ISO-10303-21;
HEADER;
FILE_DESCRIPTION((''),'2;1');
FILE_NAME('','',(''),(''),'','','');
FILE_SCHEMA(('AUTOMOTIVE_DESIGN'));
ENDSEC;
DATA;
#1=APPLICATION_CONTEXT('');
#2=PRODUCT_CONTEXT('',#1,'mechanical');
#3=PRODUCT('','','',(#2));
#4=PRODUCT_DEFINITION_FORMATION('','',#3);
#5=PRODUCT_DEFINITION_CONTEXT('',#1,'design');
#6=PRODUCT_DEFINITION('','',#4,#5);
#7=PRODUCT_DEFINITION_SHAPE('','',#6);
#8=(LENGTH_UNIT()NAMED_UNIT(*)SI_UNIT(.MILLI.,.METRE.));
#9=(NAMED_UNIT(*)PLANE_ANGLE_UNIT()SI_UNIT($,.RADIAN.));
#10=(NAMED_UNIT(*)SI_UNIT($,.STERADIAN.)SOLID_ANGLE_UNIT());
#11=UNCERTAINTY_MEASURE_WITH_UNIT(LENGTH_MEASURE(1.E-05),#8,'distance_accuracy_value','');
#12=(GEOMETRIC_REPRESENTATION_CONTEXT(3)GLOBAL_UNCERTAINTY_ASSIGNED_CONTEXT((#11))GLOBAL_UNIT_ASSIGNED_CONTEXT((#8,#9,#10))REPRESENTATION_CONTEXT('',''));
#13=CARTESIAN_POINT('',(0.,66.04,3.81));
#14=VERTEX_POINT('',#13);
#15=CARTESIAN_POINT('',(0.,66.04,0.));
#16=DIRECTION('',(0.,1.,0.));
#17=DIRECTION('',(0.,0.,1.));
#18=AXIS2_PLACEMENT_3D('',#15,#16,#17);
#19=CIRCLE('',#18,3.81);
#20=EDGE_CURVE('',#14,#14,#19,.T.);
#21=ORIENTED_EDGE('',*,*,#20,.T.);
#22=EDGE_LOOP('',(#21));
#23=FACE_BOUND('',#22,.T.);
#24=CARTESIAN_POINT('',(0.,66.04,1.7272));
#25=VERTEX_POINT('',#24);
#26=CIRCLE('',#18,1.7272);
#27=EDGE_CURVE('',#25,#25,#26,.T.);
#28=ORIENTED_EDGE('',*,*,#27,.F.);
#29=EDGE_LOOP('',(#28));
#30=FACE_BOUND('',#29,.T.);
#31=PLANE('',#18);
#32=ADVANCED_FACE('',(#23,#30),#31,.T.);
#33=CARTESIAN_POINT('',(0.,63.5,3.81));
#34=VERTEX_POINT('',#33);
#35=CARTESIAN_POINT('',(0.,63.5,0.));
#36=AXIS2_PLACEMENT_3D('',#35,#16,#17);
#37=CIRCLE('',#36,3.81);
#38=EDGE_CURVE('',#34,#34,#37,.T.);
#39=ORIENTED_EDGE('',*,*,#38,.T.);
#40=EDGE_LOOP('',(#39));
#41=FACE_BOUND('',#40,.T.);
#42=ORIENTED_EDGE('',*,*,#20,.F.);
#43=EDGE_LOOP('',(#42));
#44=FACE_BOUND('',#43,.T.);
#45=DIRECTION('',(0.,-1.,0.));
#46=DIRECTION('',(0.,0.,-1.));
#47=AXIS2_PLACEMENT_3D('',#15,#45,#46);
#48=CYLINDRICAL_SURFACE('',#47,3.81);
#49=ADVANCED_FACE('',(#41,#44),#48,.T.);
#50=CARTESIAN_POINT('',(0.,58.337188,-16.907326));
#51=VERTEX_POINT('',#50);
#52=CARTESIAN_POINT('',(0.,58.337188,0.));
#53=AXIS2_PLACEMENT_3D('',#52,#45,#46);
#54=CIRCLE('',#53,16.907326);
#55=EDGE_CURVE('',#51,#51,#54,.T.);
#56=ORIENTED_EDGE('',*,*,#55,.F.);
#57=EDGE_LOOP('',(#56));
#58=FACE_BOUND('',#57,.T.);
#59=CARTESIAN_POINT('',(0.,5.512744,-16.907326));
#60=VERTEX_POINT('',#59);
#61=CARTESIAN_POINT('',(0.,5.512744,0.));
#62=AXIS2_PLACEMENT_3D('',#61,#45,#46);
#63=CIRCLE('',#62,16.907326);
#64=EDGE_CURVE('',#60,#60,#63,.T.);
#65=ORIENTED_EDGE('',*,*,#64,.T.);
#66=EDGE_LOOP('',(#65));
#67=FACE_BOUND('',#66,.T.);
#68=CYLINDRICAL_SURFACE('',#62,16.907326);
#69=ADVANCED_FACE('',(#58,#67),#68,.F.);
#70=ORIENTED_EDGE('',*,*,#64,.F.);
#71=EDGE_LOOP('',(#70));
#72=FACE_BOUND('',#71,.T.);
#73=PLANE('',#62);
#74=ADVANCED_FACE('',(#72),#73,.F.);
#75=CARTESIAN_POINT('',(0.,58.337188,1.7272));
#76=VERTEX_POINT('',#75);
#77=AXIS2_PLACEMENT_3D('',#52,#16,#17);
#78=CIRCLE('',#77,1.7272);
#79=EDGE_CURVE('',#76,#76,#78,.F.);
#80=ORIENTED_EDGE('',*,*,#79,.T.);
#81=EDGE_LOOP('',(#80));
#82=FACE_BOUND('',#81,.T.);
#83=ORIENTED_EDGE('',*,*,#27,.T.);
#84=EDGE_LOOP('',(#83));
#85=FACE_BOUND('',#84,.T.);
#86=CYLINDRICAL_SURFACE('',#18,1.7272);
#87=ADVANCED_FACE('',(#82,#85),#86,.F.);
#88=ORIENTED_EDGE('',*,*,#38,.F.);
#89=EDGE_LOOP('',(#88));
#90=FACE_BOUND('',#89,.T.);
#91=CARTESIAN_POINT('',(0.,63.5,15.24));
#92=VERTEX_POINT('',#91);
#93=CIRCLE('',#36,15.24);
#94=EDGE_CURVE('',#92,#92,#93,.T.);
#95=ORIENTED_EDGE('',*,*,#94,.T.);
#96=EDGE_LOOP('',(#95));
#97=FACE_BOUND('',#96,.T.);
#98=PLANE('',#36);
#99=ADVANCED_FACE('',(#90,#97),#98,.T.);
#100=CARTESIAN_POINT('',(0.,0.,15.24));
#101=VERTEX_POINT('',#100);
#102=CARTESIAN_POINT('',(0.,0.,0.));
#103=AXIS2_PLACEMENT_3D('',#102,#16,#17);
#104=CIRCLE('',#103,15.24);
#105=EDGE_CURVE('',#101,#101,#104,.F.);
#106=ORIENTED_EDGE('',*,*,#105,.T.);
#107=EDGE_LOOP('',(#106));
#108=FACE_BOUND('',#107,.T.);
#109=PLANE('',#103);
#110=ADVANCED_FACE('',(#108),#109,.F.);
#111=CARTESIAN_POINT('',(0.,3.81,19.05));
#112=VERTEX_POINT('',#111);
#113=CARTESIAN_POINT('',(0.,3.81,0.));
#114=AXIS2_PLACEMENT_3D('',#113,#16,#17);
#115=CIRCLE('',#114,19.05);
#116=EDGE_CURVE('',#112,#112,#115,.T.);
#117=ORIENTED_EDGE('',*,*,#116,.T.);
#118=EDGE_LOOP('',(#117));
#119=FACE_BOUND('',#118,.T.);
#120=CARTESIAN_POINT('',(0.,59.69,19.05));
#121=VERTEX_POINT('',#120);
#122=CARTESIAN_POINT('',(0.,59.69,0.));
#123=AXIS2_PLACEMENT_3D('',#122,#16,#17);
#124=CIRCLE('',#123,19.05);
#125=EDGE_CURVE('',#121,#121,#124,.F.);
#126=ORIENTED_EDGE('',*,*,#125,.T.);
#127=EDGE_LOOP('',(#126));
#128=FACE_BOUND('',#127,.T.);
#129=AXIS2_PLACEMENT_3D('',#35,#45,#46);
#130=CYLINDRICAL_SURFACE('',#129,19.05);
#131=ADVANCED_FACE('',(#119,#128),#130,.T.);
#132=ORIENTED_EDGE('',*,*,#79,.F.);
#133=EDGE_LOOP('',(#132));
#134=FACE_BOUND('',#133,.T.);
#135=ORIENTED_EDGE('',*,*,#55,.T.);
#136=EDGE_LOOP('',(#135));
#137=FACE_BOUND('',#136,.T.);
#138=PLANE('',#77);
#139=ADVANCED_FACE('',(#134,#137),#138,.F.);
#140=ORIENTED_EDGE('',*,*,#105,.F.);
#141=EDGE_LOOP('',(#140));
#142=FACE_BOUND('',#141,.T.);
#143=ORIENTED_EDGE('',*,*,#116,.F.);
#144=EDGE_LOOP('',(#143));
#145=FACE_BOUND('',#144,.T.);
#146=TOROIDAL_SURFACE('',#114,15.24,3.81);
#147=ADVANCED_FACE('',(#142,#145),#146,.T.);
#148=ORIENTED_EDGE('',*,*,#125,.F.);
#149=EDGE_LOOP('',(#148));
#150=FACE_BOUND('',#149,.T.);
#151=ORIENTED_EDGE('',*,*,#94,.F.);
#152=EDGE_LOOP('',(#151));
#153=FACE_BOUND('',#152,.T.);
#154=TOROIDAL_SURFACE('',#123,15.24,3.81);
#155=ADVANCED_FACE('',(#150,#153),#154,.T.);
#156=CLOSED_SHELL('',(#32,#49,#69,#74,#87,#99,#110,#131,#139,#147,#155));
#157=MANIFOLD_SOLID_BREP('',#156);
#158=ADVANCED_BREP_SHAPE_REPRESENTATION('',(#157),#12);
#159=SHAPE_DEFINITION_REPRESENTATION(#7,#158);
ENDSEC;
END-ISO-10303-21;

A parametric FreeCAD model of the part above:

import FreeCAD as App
import Part
import Sketcher

V = App.Vector
Q = App.Units.Quantity


def edges_at(feature, points):
    """Names of the edges that pass closest to the given points."""
    edges = feature.Shape.Edges
    near = lambda p: min(range(len(edges)), key=lambda i: edges[i].distToShape(Part.Vertex(*p))[0])
    return sorted({f"Edge{near(p) + 1}" for p in points})


def add_polygon(sketch, points):
    """Adds a closed chain of lines whose ends are joined by coincident constraints."""
    first, n = sketch.GeometryCount, len(points)
    for a, b in zip(points, points[1:] + points[:1]):
        sketch.addGeometry(Part.LineSegment(App.Vector(*a, 0), App.Vector(*b, 0)), False)
    for i in range(n):
        sketch.addConstraint(Sketcher.Constraint("Coincident", first + i, 2, first + (i + 1) % n, 1))

doc = App.newDocument("Part")
body = doc.addObject("PartDesign::Body", "Body")

# Sketch on XZ plane
sketch1 = doc.addObject("Sketcher::SketchObject", "Sketch")
body.addObject(sketch1)
sketch1.AttachmentSupport = (doc.XZ_Plane, [""])
sketch1.MapMode = "FlatFace"
sketch1.addGeometry(Part.Circle(V(0, 0, 0), V(0, 0, 1), 19.05), False)
sketch1.addConstraint([
    Sketcher.Constraint("Coincident", 0, 3, -1, 1),
    Sketcher.Constraint("Diameter", 0, Q("1.5 in")),
])
pad1 = doc.addObject("PartDesign::Pad", "Pad")
body.addObject(pad1)
pad1.Profile = sketch1
pad1.Length = Q("2.5 in")
pad1.Reversed = True
doc.recompute()

fillet = doc.addObject("PartDesign::Fillet", "Fillet")
body.addObject(fillet)
fillet.Base = (pad1, edges_at(pad1, [(-19.05, 0, 0), (-19.05, 63.5, 0)]))
fillet.Radius = Q("0.15 in")

# Sketch on XZ plane
sketch2 = doc.addObject("Sketcher::SketchObject", "Sketch001")
body.addObject(sketch2)
sketch2.AttachmentSupport = (doc.XZ_Plane, [""])
sketch2.MapMode = "FlatFace"
sketch2.AttachmentOffset = App.Placement(V(0, 0, -2.5 * 25.4), App.Rotation())
sketch2.addGeometry(Part.Circle(V(0, 0, 0), V(0, 0, 1), 3.81), False)
sketch2.addConstraint([
    Sketcher.Constraint("Coincident", 0, 3, -1, 1),
    Sketcher.Constraint("Diameter", 0, Q("0.3 in")),
])
pad2 = doc.addObject("PartDesign::Pad", "Pad001")
body.addObject(pad2)
pad2.Profile = sketch2
pad2.Length = Q("0.1 in")
pad2.Reversed = True

# Sketch on XZ plane
sketch3 = doc.addObject("Sketcher::SketchObject", "Sketch002")
body.addObject(sketch3)
sketch3.AttachmentSupport = (doc.XZ_Plane, [""])
sketch3.MapMode = "FlatFace"
sketch3.AttachmentOffset = App.Placement(V(0, 0, -2.6 * 25.4), App.Rotation())
sketch3.addGeometry(Part.Circle(V(0, 0, 0), V(0, 0, 1), 1.7272), False)
sketch3.addConstraint([
    Sketcher.Constraint("Coincident", 0, 3, -1, 1),
    Sketcher.Constraint("Diameter", 0, Q("0.136 in")),
])
doc.recompute()
hole = doc.addObject("PartDesign::Hole", "Hole")
body.addObject(hole)
hole.Profile = sketch3
hole.ThreadType = "None"
hole.Diameter = Q("0.136 in")
hole.DepthType = "Dimension"
hole.Depth = Q("0.4936 in")
hole.DrillPoint = "Angled"
hole.DrillPointAngle = 118
hole.Reversed = True

# Sketch on YZ plane
sketch4 = doc.addObject("Sketcher::SketchObject", "Sketch003")
body.addObject(sketch4)
sketch4.AttachmentSupport = (doc.YZ_Plane, [""])
sketch4.MapMode = "FlatFace"
add_polygon(sketch4, [(58.337188, 0), (5.512744, 0), (5.512744, -16.907326), (58.337188, -16.907326)])  # lines 0-3
sketch4.addConstraint([
    Sketcher.Constraint("Horizontal", 0),
    Sketcher.Constraint("Vertical", 1),
    Sketcher.Constraint("Horizontal", 2),
    Sketcher.Constraint("Vertical", 3),
    Sketcher.Constraint("PointOnObject", 0, 2, -1),
    Sketcher.Constraint("DistanceX", 0, 2, 0, 1, 52.824444),
    Sketcher.Constraint("DistanceY", 1, 2, 1, 1, 16.907326),
    Sketcher.Constraint("DistanceX", -1, 1, 2, 2, 58.337188),
])
groove = doc.addObject("PartDesign::Groove", "Groove")
body.addObject(groove)
groove.Profile = sketch4
groove.ReferenceAxis = (sketch4, ["H_Axis"])
groove.Angle = 360

doc.recompute()
